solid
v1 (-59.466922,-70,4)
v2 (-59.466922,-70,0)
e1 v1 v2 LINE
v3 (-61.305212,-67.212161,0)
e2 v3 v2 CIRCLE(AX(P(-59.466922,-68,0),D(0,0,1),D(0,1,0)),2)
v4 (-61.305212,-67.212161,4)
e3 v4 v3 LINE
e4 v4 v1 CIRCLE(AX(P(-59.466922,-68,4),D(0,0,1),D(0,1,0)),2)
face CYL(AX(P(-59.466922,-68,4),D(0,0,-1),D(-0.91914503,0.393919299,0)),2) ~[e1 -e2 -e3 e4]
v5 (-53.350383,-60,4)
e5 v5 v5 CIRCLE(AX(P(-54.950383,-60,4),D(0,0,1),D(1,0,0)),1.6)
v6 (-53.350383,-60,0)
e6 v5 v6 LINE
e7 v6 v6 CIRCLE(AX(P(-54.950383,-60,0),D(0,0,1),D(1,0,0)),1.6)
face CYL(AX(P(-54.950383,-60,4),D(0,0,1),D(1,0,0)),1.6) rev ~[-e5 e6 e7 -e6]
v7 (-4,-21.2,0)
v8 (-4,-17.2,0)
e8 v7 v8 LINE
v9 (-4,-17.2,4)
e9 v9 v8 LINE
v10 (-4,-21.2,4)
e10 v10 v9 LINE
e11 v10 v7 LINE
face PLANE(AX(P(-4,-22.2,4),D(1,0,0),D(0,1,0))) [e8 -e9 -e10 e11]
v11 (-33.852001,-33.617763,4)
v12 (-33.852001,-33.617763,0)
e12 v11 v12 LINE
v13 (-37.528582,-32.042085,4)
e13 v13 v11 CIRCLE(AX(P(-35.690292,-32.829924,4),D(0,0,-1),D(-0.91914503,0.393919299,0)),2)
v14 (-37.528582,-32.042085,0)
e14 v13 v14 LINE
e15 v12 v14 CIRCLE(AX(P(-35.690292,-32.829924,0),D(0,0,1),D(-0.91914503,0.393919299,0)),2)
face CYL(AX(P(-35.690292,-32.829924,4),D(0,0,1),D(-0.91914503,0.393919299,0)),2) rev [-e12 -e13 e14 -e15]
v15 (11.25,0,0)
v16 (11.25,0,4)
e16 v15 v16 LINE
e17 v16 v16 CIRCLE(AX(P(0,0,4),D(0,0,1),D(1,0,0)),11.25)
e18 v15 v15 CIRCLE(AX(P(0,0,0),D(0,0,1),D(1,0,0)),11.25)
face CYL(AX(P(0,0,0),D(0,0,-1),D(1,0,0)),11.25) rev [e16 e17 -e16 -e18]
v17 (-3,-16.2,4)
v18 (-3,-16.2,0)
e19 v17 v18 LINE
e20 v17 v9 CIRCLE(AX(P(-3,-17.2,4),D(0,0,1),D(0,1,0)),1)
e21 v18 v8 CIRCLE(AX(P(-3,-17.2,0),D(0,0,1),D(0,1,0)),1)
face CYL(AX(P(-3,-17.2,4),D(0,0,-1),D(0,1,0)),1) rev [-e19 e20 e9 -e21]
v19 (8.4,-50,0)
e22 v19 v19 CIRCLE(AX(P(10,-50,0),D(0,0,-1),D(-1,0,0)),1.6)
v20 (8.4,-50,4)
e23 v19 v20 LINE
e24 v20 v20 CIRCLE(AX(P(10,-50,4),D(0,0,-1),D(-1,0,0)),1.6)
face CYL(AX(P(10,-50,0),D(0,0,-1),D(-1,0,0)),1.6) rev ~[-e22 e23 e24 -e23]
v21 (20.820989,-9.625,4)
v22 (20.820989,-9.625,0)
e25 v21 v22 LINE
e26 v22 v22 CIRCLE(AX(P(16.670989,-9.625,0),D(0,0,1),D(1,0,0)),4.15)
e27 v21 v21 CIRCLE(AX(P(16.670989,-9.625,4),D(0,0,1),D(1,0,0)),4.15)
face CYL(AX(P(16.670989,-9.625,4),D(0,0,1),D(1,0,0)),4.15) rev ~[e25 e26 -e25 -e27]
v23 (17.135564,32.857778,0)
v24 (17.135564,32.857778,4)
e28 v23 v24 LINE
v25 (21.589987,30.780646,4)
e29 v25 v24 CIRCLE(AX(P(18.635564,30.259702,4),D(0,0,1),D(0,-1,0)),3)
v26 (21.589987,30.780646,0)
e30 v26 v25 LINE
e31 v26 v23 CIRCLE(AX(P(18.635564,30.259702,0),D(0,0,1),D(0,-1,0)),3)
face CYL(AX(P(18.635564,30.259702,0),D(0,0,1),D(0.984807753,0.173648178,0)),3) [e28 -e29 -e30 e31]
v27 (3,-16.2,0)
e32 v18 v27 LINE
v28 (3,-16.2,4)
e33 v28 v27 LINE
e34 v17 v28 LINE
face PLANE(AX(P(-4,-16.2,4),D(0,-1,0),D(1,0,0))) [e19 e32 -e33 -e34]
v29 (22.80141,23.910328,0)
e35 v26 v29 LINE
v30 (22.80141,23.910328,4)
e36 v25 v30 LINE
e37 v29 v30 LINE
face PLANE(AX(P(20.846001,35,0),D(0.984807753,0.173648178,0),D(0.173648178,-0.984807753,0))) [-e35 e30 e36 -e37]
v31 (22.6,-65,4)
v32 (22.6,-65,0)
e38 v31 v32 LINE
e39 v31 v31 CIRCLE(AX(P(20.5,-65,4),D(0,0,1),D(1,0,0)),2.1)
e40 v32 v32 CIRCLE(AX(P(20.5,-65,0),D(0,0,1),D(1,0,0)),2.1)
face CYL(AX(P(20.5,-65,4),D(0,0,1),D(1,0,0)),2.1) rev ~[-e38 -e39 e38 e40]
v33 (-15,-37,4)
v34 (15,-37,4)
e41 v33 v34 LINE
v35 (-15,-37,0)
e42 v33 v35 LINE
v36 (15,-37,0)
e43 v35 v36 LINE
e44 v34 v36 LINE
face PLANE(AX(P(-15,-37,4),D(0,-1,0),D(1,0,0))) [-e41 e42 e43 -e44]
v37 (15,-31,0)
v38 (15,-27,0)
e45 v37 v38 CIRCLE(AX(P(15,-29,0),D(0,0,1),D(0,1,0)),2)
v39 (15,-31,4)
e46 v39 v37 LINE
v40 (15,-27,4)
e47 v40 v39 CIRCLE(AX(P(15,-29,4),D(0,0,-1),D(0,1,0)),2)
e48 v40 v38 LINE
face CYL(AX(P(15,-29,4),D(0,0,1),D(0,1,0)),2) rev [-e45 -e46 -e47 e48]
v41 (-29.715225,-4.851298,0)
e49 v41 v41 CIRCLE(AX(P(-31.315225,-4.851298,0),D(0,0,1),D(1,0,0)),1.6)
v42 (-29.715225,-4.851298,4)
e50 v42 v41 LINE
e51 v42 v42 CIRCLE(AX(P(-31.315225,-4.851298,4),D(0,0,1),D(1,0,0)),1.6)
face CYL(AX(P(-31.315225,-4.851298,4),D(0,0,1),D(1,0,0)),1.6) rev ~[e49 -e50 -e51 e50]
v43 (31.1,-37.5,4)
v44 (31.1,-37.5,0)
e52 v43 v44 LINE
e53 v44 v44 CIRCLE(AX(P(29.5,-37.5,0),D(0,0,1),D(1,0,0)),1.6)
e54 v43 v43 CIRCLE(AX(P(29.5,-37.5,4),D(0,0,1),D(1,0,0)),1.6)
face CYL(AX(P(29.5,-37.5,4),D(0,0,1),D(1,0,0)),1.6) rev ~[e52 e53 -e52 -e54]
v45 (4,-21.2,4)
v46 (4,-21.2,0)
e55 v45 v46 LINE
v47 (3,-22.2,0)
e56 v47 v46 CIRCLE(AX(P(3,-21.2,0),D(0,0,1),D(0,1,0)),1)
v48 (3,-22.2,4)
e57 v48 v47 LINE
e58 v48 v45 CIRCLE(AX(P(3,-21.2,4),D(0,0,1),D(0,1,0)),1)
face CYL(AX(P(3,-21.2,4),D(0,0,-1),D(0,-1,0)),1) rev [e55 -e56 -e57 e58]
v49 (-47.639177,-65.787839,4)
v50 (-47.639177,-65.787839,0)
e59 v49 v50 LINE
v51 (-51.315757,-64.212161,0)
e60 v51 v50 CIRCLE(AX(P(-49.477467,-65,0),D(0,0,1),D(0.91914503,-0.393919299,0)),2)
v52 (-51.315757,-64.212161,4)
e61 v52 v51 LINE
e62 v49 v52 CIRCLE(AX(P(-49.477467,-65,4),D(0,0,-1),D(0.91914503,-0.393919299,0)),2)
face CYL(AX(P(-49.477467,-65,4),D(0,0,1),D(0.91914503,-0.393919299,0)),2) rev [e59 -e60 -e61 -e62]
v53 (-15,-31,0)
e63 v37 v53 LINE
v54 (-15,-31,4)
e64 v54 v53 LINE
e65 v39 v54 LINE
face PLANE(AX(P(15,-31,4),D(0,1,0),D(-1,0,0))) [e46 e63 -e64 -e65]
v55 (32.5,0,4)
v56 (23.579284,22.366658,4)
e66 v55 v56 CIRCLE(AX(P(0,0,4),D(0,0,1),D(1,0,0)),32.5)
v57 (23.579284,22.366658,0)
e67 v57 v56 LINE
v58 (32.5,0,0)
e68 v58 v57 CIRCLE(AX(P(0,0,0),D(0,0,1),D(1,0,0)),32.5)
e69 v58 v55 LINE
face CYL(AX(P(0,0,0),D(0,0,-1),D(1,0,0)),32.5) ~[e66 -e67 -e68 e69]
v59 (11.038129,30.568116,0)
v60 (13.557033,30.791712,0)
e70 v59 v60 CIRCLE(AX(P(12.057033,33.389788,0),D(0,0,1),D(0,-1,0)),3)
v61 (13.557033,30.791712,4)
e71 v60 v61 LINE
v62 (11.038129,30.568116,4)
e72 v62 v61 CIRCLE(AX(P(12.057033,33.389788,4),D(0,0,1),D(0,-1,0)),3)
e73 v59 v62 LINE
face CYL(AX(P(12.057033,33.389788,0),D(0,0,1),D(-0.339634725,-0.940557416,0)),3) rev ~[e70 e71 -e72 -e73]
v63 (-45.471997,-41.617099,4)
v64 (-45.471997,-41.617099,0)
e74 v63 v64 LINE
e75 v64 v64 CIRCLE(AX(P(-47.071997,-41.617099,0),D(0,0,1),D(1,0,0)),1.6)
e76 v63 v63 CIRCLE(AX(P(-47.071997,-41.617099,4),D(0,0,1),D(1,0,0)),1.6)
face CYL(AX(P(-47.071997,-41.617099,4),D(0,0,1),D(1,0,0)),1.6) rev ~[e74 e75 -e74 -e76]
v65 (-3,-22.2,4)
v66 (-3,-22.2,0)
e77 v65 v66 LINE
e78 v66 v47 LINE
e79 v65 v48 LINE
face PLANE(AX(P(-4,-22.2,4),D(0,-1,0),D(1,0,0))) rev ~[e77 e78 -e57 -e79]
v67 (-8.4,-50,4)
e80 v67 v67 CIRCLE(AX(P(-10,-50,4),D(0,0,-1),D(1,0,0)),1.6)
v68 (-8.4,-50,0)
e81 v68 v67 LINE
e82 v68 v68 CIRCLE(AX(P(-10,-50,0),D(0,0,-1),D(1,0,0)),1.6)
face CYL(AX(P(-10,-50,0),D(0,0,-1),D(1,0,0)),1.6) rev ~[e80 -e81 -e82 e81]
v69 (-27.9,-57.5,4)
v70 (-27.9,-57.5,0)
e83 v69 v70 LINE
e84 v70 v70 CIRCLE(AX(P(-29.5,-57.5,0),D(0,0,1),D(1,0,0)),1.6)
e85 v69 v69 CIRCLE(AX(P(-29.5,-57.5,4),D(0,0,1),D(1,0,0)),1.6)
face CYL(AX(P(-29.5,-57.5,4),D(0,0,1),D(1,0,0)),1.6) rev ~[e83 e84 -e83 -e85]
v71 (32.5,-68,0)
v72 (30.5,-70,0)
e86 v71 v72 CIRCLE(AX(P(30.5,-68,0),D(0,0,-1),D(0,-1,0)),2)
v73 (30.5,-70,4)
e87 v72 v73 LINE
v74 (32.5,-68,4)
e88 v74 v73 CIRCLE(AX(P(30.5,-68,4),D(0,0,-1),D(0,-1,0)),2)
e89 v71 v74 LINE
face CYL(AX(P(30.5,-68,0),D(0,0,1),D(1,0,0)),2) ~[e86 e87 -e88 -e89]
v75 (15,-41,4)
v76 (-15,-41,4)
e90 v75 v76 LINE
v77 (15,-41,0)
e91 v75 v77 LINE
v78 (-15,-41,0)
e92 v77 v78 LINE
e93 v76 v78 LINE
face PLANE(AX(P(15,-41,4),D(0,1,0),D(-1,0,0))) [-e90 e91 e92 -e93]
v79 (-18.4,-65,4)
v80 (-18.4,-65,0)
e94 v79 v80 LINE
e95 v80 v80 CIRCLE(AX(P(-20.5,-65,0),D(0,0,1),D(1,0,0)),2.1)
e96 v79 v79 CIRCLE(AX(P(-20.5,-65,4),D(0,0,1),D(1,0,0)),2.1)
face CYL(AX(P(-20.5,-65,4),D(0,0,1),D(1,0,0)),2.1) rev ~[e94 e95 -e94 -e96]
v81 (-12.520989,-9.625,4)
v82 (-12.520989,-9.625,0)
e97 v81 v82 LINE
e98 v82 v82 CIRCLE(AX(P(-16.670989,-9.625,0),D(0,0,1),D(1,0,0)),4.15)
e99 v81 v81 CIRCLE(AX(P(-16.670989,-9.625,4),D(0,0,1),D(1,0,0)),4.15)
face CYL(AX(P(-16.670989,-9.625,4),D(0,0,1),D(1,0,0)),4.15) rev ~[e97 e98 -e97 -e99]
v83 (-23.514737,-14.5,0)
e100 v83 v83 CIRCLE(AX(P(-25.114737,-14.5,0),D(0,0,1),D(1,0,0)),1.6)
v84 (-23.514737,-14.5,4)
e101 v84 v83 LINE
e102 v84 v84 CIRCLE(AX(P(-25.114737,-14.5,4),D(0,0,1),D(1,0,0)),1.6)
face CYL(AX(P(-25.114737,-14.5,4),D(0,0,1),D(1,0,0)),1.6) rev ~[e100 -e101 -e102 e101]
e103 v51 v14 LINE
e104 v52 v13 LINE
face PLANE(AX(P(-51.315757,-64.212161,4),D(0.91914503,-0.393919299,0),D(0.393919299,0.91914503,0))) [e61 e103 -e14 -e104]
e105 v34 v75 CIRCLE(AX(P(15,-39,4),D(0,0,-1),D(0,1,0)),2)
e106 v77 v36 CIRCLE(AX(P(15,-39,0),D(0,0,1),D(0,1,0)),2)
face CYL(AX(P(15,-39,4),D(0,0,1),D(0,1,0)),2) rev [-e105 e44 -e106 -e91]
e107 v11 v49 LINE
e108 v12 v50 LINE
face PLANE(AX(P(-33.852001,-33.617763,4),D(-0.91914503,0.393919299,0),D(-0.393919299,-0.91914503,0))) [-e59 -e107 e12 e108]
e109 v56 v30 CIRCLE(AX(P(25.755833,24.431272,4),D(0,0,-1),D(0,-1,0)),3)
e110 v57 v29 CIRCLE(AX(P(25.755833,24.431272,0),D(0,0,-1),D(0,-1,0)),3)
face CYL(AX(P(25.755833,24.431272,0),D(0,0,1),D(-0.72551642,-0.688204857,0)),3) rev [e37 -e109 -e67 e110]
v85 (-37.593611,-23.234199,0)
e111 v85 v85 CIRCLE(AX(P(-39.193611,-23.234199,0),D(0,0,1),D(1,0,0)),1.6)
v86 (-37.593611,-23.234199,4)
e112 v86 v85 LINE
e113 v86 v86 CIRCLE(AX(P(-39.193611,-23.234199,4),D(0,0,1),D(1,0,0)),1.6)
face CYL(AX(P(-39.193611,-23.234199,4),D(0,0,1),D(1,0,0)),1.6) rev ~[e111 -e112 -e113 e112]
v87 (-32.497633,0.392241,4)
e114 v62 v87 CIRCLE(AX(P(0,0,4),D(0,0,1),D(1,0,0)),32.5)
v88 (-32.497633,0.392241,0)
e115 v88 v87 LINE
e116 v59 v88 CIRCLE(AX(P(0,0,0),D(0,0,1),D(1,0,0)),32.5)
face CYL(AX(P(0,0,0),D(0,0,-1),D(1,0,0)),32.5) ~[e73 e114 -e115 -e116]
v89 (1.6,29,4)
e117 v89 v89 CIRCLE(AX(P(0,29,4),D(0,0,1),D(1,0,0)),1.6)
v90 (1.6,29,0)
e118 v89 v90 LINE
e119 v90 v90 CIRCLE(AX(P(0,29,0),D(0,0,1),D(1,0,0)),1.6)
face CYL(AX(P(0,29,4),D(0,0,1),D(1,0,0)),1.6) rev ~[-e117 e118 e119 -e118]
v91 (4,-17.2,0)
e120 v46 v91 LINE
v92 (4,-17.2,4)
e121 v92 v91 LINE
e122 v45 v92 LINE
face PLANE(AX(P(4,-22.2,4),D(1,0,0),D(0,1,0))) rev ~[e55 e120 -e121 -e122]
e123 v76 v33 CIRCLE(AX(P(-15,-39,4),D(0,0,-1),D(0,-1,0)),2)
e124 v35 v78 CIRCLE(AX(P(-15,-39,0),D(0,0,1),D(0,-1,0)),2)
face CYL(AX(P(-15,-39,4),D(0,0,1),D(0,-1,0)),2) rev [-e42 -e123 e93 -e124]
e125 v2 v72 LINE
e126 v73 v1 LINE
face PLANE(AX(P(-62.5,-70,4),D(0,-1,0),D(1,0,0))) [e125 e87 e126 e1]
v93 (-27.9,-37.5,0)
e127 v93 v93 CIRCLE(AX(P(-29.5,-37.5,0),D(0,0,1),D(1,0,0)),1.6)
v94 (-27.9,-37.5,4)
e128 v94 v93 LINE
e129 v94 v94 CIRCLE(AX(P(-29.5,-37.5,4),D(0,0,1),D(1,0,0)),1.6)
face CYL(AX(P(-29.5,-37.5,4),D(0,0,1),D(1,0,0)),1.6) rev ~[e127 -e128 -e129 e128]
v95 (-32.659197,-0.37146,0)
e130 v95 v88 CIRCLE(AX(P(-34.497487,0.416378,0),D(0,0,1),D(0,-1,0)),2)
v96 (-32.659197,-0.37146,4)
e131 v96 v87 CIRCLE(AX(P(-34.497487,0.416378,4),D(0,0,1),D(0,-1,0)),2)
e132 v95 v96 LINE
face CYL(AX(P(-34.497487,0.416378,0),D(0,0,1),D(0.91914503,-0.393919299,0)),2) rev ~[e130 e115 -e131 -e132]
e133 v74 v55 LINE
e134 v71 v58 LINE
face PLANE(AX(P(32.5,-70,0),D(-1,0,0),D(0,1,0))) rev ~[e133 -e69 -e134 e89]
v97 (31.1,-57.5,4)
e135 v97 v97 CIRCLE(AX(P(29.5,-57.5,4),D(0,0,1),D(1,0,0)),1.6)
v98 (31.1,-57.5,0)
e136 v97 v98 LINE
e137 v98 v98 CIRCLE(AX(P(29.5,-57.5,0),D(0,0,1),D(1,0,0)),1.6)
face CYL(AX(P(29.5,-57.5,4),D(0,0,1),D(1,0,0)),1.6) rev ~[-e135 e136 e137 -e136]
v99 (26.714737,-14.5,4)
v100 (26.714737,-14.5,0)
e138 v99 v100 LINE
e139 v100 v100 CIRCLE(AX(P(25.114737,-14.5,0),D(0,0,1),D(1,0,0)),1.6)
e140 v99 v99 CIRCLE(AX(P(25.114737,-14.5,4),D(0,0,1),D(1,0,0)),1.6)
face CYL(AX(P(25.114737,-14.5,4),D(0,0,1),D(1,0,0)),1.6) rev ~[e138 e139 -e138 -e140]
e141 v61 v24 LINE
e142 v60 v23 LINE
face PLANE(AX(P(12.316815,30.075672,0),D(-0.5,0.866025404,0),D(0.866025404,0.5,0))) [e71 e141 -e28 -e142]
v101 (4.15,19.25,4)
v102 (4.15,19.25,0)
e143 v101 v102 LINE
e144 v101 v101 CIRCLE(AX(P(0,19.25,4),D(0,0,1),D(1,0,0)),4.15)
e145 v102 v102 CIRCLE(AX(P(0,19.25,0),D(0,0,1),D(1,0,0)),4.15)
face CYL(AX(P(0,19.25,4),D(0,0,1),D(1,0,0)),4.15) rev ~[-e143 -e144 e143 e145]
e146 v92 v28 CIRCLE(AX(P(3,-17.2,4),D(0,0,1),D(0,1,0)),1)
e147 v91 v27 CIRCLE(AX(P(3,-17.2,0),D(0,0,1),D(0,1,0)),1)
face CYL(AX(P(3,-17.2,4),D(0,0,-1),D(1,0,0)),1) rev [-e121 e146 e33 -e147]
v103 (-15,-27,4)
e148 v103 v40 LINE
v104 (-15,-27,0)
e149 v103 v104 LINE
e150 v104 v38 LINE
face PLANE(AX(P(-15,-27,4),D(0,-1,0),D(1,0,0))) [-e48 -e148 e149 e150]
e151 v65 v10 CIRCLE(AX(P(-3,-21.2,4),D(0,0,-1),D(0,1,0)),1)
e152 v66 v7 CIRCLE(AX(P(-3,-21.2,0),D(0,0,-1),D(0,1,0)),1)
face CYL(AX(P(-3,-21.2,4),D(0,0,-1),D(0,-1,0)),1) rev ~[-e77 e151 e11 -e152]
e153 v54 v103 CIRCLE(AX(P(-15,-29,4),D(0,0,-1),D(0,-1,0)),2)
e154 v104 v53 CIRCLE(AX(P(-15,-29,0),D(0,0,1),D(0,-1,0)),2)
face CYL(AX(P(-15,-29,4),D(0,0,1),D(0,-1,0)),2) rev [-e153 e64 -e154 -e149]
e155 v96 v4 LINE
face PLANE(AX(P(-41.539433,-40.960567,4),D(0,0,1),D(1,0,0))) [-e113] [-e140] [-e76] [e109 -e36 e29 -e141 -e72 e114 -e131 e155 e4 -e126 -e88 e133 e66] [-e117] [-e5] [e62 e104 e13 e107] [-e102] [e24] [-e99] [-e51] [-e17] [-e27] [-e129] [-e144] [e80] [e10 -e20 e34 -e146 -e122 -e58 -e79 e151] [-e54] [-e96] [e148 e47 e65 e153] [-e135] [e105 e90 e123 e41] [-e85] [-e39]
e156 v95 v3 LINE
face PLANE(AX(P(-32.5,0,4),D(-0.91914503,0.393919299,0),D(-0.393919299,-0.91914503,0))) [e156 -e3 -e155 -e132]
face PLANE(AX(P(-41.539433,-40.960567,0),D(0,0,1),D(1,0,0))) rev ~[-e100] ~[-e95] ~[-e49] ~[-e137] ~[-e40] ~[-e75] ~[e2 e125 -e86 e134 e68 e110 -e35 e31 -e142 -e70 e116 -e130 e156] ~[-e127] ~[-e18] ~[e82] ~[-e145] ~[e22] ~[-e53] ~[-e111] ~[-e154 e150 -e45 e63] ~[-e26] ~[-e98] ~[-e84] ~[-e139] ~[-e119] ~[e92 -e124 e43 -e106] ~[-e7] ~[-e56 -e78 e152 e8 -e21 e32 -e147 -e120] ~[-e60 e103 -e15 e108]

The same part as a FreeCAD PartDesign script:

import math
import FreeCAD as App
import Part
import Sketcher
from FreeCAD import Vector
Q = App.Units.Quantity


def edges_at(feature, points):
    """Names of the edges that pass closest to the given points."""
    edges = feature.Shape.Edges
    near = lambda p: min(range(len(edges)), key=lambda i: edges[i].distToShape(Part.Vertex(*p))[0])
    return sorted({f"Edge{near(p) + 1}" for p in points})

doc = App.newDocument("Part")
params = doc.addObject("Spreadsheet::Sheet", "Params")
for row, (alias, value) in enumerate([
    ("sketch1_diameter", "65 mm"),
    ("sketch1_diameter2", "22.5 mm"),
    ("pad1_length", "4 mm"),
    ("sketch2_radius", "32.5 mm"),
    ("sketch2_height", "70 mm"),
    ("pad2_length", "4 mm"),
    ("sketch3_diameter", "8.3 mm"),
    ("pocket1_length", "4 mm"),
    ("sketch4_diameter", "3.2 mm"),
    ("pocket2_length", "4 mm"),
    ("sketch5_height", "4 mm"),
    ("sketch5_width", "35.2 mm"),
    ("pad3_length", "4 mm"),
    ("sketch6_diameter", "4.2 mm"),
    ("pocket3_length", "4 mm"),
    ("sketch7_width", "8 mm"),
    ("sketch7_height", "6 mm"),
    ("pocket4_length", "4 mm"),
    ("fillet_radius", "1 mm"),
    ("sketch8_diameter", "3.2 mm"),
    ("pocket5_length", "10 mm"),
    ("sketch9_height", "4 mm"),
    ("sketch9_width", "35.2 mm"),
    ("pocket6_length", "10 mm"),
    ("sketch10_diameter", "3.2 mm"),
    ("pocket7_length", "10 mm"),
    ("sketch11_radius", "32.5 mm"),
    ("pad4_length", "4 mm"),
    ("fillet2_radius", "3 mm"),
    ("sketch12_radius", "2 mm"),
    ("sketch12_width", "30 mm"),
    ("pocket8_length", "10 mm"),
    ("sketch13_width", "30 mm"),
    ("sketch13_height", "70 mm"),
    ("pad5_length", "4 mm"),
    ("fillet3_radius", "2 mm"),
    ("sketch14_radius", "2 mm"),
    ("sketch14_radius2", "2 mm"),
    ("sketch14_diameter", "3.2 mm"),
    ("sketch14_diameter2", "3.2 mm"),
    ("sketch14_diameter3", "3.2 mm"),
    ("pocket9_length", "10 mm"),
], start=1):
    params.set(f"A{row}", alias)
    params.set(f"B{row}", "=" + value)
    params.setAlias(f"B{row}", alias)

body = doc.addObject("PartDesign::Body", "Body")

sketch1 = body.newObject("Sketcher::SketchObject", "Sketch")
sketch1.AttachmentSupport = (doc.getObject("XY_Plane"), [""])
sketch1.MapMode = "FlatFace"
sketch1.addGeometry(Part.Circle(Vector(0, 0, 0), Vector(0, 0, 1), 32), False)
sketch1.addGeometry(Part.Circle(Vector(0, 0, 0), Vector(0, 0, 1), 11), False)
sketch1.addConstraint(Sketcher.Constraint("Coincident", 0, 3, -1, 1))
sketch1.addConstraint(Sketcher.Constraint("Coincident", 1, 3, -1, 1))
sketch1.addConstraint(Sketcher.Constraint("Diameter", 0, Q("65 mm")))
sketch1.addConstraint(Sketcher.Constraint("Diameter", 1, Q("22.5 mm")))
sketch1.setExpression("Constraints[2]", "Params.sketch1_diameter")
sketch1.setExpression("Constraints[3]", "Params.sketch1_diameter2")
pad1 = body.newObject("PartDesign::Pad", "Pad")
pad1.Profile = sketch1
pad1.setExpression("Length", "Params.pad1_length")

sketch2 = body.newObject("Sketcher::SketchObject", "Sketch001")
sketch2.AttachmentSupport = (doc.getObject("XY_Plane"), [""])
sketch2.MapMode = "FlatFace"
sketch2.addGeometry(Part.LineSegment(Vector(-32, 0, 0), Vector(-32, -70, 0)), False)
sketch2.addGeometry(Part.LineSegment(Vector(-32, -70, 0), Vector(32, -70, 0)), False)
sketch2.addGeometry(Part.LineSegment(Vector(32, -70, 0), Vector(32, 0, 0)), False)
sketch2.addGeometry(Part.ArcOfCircle(Part.Circle(Vector(0, 0, 0), Vector(0, 0, 1), 32), math.radians(180), math.radians(360)), False)
sketch2.addConstraint(Sketcher.Constraint("Coincident", 0, 2, 1, 1))
sketch2.addConstraint(Sketcher.Constraint("Coincident", 1, 2, 2, 1))
sketch2.addConstraint(Sketcher.Constraint("Tangent", 2, 2, 3, 2))
sketch2.addConstraint(Sketcher.Constraint("Tangent", 3, 1, 0, 1))
sketch2.addConstraint(Sketcher.Constraint("Vertical", 0))
sketch2.addConstraint(Sketcher.Constraint("Horizontal", 1))
sketch2.addConstraint(Sketcher.Constraint("Vertical", 2))
sketch2.addConstraint(Sketcher.Constraint("Coincident", 3, 3, -1, 1))
sketch2.addConstraint(Sketcher.Constraint("Radius", 3, Q("32.5 mm")))
sketch2.addConstraint(Sketcher.Constraint("DistanceY", 0, 2, 0, 1, Q("70 mm")))
sketch2.setExpression("Constraints[8]", "Params.sketch2_radius")
sketch2.setExpression("Constraints[9]", "Params.sketch2_height")
pad2 = body.newObject("PartDesign::Pad", "Pad001")
pad2.Profile = sketch2
pad2.setExpression("Length", "Params.pad2_length")

sketch3 = body.newObject("Sketcher::SketchObject", "Sketch002")
sketch3.AttachmentSupport = (doc.getObject("XY_Plane"), [""])
sketch3.MapMode = "FlatFace"
sketch3.AttachmentOffset = App.Placement(Vector(0, 0, 4), App.Rotation())
sketch3.addGeometry(Part.Circle(Vector(0, 19.2, 0), Vector(0, 0, 1), 4.2), False)
sketch3.addGeometry(Part.Circle(Vector(16.7, -9.6, 0), Vector(0, 0, 1), 4.2), False)
sketch3.addGeometry(Part.Circle(Vector(-16.7, -9.6, 0), Vector(0, 0, 1), 4.2), False)
sketch3.addConstraint(Sketcher.Constraint("Equal", 0, 1))
sketch3.addConstraint(Sketcher.Constraint("Equal", 1, 2))
sketch3.addConstraint(Sketcher.Constraint("Symmetric", 1, 3, 2, 3, -2))
sketch3.addConstraint(Sketcher.Constraint("PointOnObject", 0, 3, -2))
sketch3.addConstraint(Sketcher.Constraint("Diameter", 0, Q("8.3 mm")))
sketch3.addConstraint(Sketcher.Constraint("DistanceY", -1, 1, 0, 3, Q("19.25 mm")))
sketch3.addConstraint(Sketcher.Constraint("DistanceY", 1, 3, -1, 1, Q("9.625 mm")))
sketch3.addConstraint(Sketcher.Constraint("DistanceX", -1, 1, 1, 3, Q("16.670989 mm")))
sketch3.setExpression("Constraints[4]", "Params.sketch3_diameter")
pocket1 = body.newObject("PartDesign::Pocket", "Pocket")
pocket1.Profile = sketch3
pocket1.setExpression("Length", "Params.pocket1_length")

sketch4 = body.newObject("Sketcher::SketchObject", "Sketch003")
sketch4.AttachmentSupport = (doc.getObject("XY_Plane"), [""])
sketch4.MapMode = "FlatFace"
sketch4.AttachmentOffset = App.Placement(Vector(0, 0, 4), App.Rotation())
sketch4.addGeometry(Part.Circle(Vector(0, 29, 0), Vector(0, 0, 1), 1.6), False)
sketch4.addGeometry(Part.Circle(Vector(25.1, -14.5, 0), Vector(0, 0, 1), 1.6), False)
sketch4.addGeometry(Part.Circle(Vector(-25.1, -14.5, 0), Vector(0, 0, 1), 1.6), False)
sketch4.addConstraint(Sketcher.Constraint("Equal", 0, 1))
sketch4.addConstraint(Sketcher.Constraint("Equal", 1, 2))
sketch4.addConstraint(Sketcher.Constraint("Symmetric", 1, 3, 2, 3, -2))
sketch4.addConstraint(Sketcher.Constraint("PointOnObject", 0, 3, -2))
sketch4.addConstraint(Sketcher.Constraint("Diameter", 0, Q("3.2 mm")))
sketch4.addConstraint(Sketcher.Constraint("DistanceY", -1, 1, 0, 3, Q("29 mm")))
sketch4.addConstraint(Sketcher.Constraint("DistanceY", 1, 3, -1, 1, Q("14.5 mm")))
sketch4.addConstraint(Sketcher.Constraint("DistanceX", -1, 1, 1, 3, Q("25.114737 mm")))
sketch4.setExpression("Constraints[4]", "Params.sketch4_diameter")
pocket2 = body.newObject("PartDesign::Pocket", "Pocket001")
pocket2.Profile = sketch4
pocket2.setExpression("Length", "Params.pocket2_length")

sketch5 = body.newObject("Sketcher::SketchObject", "Sketch004")
sketch5.AttachmentSupport = (doc.getObject("XY_Plane"), [""])
sketch5.MapMode = "FlatFace"
sketch5.AttachmentOffset = App.Placement(Vector(0, 0, 4), App.Rotation())
sketch5.addGeometry(Part.LineSegment(Vector(-17.6, -70, 0), Vector(-17.6, -74, 0)), False)
sketch5.addGeometry(Part.LineSegment(Vector(-17.6, -74, 0), Vector(17.6, -74, 0)), False)
sketch5.addGeometry(Part.LineSegment(Vector(17.6, -74, 0), Vector(17.6, -70, 0)), False)
sketch5.addGeometry(Part.LineSegment(Vector(17.6, -70, 0), Vector(-17.6, -70, 0)), False)
sketch5.addConstraint(Sketcher.Constraint("Coincident", 0, 2, 1, 1))
sketch5.addConstraint(Sketcher.Constraint("Coincident", 1, 2, 2, 1))
sketch5.addConstraint(Sketcher.Constraint("Coincident", 2, 2, 3, 1))
sketch5.addConstraint(Sketcher.Constraint("Coincident", 3, 2, 0, 1))
sketch5.addConstraint(Sketcher.Constraint("Vertical", 0))
sketch5.addConstraint(Sketcher.Constraint("Horizontal", 1))
sketch5.addConstraint(Sketcher.Constraint("Vertical", 2))
sketch5.addConstraint(Sketcher.Constraint("Horizontal", 3))
sketch5.addConstraint(Sketcher.Constraint("DistanceY", 0, 2, 0, 1, Q("4 mm")))
sketch5.addConstraint(Sketcher.Constraint("DistanceX", 1, 1, 1, 2, Q("35.2 mm")))
sketch5.addConstraint(Sketcher.Constraint("DistanceY", 0, 2, -1, 1, Q("74 mm")))
sketch5.addConstraint(Sketcher.Constraint("DistanceX", 0, 2, -1, 1, Q("17.6 mm")))
sketch5.setExpression("Constraints[8]", "Params.sketch5_height")
sketch5.setExpression("Constraints[9]", "Params.sketch5_width")
pad3 = body.newObject("PartDesign::Pad", "Pad002")
pad3.Profile = sketch5
pad3.setExpression("Length", "Params.pad3_length")
pad3.Reversed = True

sketch6 = body.newObject("Sketcher::SketchObject", "Sketch005")
sketch6.AttachmentSupport = (doc.getObject("XY_Plane"), [""])
sketch6.MapMode = "FlatFace"
sketch6.AttachmentOffset = App.Placement(Vector(0, 0, 4), App.Rotation())
sketch6.addGeometry(Part.Circle(Vector(-20.5, -65, 0), Vector(0, 0, 1), 2.1), False)
sketch6.addGeometry(Part.Circle(Vector(20.5, -65, 0), Vector(0, 0, 1), 2.1), False)
sketch6.addConstraint(Sketcher.Constraint("Equal", 0, 1))
sketch6.addConstraint(Sketcher.Constraint("Symmetric", 0, 3, 1, 3, -2))
sketch6.addConstraint(Sketcher.Constraint("Diameter", 0, Q("4.2 mm")))
sketch6.addConstraint(Sketcher.Constraint("DistanceY", 0, 3, -1, 1, Q("65 mm")))
sketch6.addConstraint(Sketcher.Constraint("DistanceX", 0, 3, 1, 3, Q("41 mm")))
sketch6.setExpression("Constraints[2]", "Params.sketch6_diameter")
pocket3 = body.newObject("PartDesign::Pocket", "Pocket002")
pocket3.Profile = sketch6
pocket3.setExpression("Length", "Params.pocket3_length")

sketch7 = body.newObject("Sketcher::SketchObject", "Sketch006")
sketch7.AttachmentSupport = (doc.getObject("XY_Plane"), [""])
sketch7.MapMode = "FlatFace"
sketch7.AttachmentOffset = App.Placement(Vector(0, 0, 4), App.Rotation())
sketch7.addGeometry(Part.LineSegment(Vector(-4, -16, 0), Vector(-4, -22, 0)), False)
sketch7.addGeometry(Part.LineSegment(Vector(-4, -22, 0), Vector(4, -22, 0)), False)
sketch7.addGeometry(Part.LineSegment(Vector(4, -22, 0), Vector(4, -16, 0)), False)
sketch7.addGeometry(Part.LineSegment(Vector(4, -16, 0), Vector(-4, -16, 0)), False)
sketch7.addConstraint(Sketcher.Constraint("Coincident", 0, 2, 1, 1))
sketch7.addConstraint(Sketcher.Constraint("Coincident", 1, 2, 2, 1))
sketch7.addConstraint(Sketcher.Constraint("Coincident", 2, 2, 3, 1))
sketch7.addConstraint(Sketcher.Constraint("Coincident", 3, 2, 0, 1))
sketch7.addConstraint(Sketcher.Constraint("Vertical", 0))
sketch7.addConstraint(Sketcher.Constraint("Horizontal", 1))
sketch7.addConstraint(Sketcher.Constraint("Vertical", 2))
sketch7.addConstraint(Sketcher.Constraint("Horizontal", 3))
sketch7.addConstraint(Sketcher.Constraint("DistanceX", 1, 1, 1, 2, Q("8 mm")))
sketch7.addConstraint(Sketcher.Constraint("DistanceY", 0, 2, 0, 1, Q("6 mm")))
sketch7.addConstraint(Sketcher.Constraint("DistanceX", 0, 2, -1, 1, Q("4 mm")))
sketch7.addConstraint(Sketcher.Constraint("DistanceY", 0, 2, -1, 1, Q("22.2 mm")))
sketch7.setExpression("Constraints[8]", "Params.sketch7_width")
sketch7.setExpression("Constraints[9]", "Params.sketch7_height")
pocket4 = body.newObject("PartDesign::Pocket", "Pocket003")
pocket4.Profile = sketch7
pocket4.setExpression("Length", "Params.pocket4_length")
doc.recompute()

fillet = body.newObject("PartDesign::Fillet", "Fillet")
fillet.Base = (pocket4, edges_at(pocket4, [
    (4, -16.2, 2),
    (4, -22.2, 2),
    (-4, -22.2, 2),
    (-4, -16.2, 2),
]))
fillet.setExpression("Radius", "Params.fillet_radius")

sketch8 = body.newObject("Sketcher::SketchObject", "Sketch007")
sketch8.AttachmentSupport = (doc.getObject("XY_Plane"), [""])
sketch8.MapMode = "FlatFace"
sketch8.addGeometry(Part.Circle(Vector(10, -50, 0), Vector(0, 0, 1), 1.6), False)
sketch8.addGeometry(Part.Circle(Vector(-10, -50, 0), Vector(0, 0, 1), 1.6), False)
sketch8.addConstraint(Sketcher.Constraint("Equal", 0, 1))
sketch8.addConstraint(Sketcher.Constraint("Symmetric", 0, 3, 1, 3, -2))
sketch8.addConstraint(Sketcher.Constraint("Diameter", 0, Q("3.2 mm")))
sketch8.addConstraint(Sketcher.Constraint("DistanceX", -1, 1, 0, 3, Q("10 mm")))
sketch8.addConstraint(Sketcher.Constraint("DistanceY", 0, 3, -1, 1, Q("50 mm")))
sketch8.setExpression("Constraints[2]", "Params.sketch8_diameter")
pocket5 = body.newObject("PartDesign::Pocket", "Pocket004")
pocket5.Profile = sketch8
pocket5.setExpression("Length", "Params.pocket5_length")
pocket5.Reversed = True

sketch9 = body.newObject("Sketcher::SketchObject", "Sketch008")
sketch9.AttachmentSupport = (doc.getObject("XY_Plane"), [""])
sketch9.MapMode = "FlatFace"
sketch9.AttachmentOffset = App.Placement(Vector(0, 0, 4), App.Rotation())
sketch9.addGeometry(Part.LineSegment(Vector(-17.6, -70, 0), Vector(-17.6, -74, 0)), False)
sketch9.addGeometry(Part.LineSegment(Vector(-17.6, -74, 0), Vector(17.6, -74, 0)), False)
sketch9.addGeometry(Part.LineSegment(Vector(17.6, -74, 0), Vector(17.6, -70, 0)), False)
sketch9.addGeometry(Part.LineSegment(Vector(17.6, -70, 0), Vector(-17.6, -70, 0)), False)
sketch9.addConstraint(Sketcher.Constraint("Coincident", 0, 2, 1, 1))
sketch9.addConstraint(Sketcher.Constraint("Coincident", 1, 2, 2, 1))
sketch9.addConstraint(Sketcher.Constraint("Coincident", 2, 2, 3, 1))
sketch9.addConstraint(Sketcher.Constraint("Coincident", 3, 2, 0, 1))
sketch9.addConstraint(Sketcher.Constraint("Vertical", 0))
sketch9.addConstraint(Sketcher.Constraint("Horizontal", 1))
sketch9.addConstraint(Sketcher.Constraint("Vertical", 2))
sketch9.addConstraint(Sketcher.Constraint("Horizontal", 3))
sketch9.addConstraint(Sketcher.Constraint("DistanceY", 0, 2, 0, 1, Q("4 mm")))
sketch9.addConstraint(Sketcher.Constraint("DistanceX", 1, 1, 1, 2, Q("35.2 mm")))
sketch9.addConstraint(Sketcher.Constraint("DistanceY", 0, 2, -1, 1, Q("74 mm")))
sketch9.addConstraint(Sketcher.Constraint("DistanceX", 0, 2, -1, 1, Q("17.6 mm")))
sketch9.setExpression("Constraints[8]", "Params.sketch9_height")
sketch9.setExpression("Constraints[9]", "Params.sketch9_width")
pocket6 = body.newObject("PartDesign::Pocket", "Pocket005")
pocket6.Profile = sketch9
pocket6.setExpression("Length", "Params.pocket6_length")

sketch10 = body.newObject("Sketcher::SketchObject", "Sketch009")
sketch10.AttachmentSupport = (doc.getObject("XY_Plane"), [""])
sketch10.MapMode = "FlatFace"
sketch10.AttachmentOffset = App.Placement(Vector(0, 0, 4), App.Rotation())
sketch10.addGeometry(Part.Circle(Vector(-29.5, -57.5, 0), Vector(0, 0, 1), 1.6), False)
sketch10.addGeometry(Part.Circle(Vector(-29.5, -37.5, 0), Vector(0, 0, 1), 1.6), False)
sketch10.addGeometry(Part.Circle(Vector(29.5, -37.5, 0), Vector(0, 0, 1), 1.6), False)
sketch10.addGeometry(Part.Circle(Vector(29.5, -57.5, 0), Vector(0, 0, 1), 1.6), False)
sketch10.addConstraint(Sketcher.Constraint("Equal", 0, 1))
sketch10.addConstraint(Sketcher.Constraint("Equal", 1, 2))
sketch10.addConstraint(Sketcher.Constraint("Equal", 2, 3))
sketch10.addConstraint(Sketcher.Constraint("Symmetric", 1, 3, 2, 3, -2))
sketch10.addConstraint(Sketcher.Constraint("Symmetric", 0, 3, 3, 3, -2))
sketch10.addConstraint(Sketcher.Constraint("Vertical", 0, 3, 1, 3))
sketch10.addConstraint(Sketcher.Constraint("Diameter", 0, Q("3.2 mm")))
sketch10.addConstraint(Sketcher.Constraint("DistanceY", 0, 3, 1, 3, Q("20 mm")))
sketch10.addConstraint(Sketcher.Constraint("DistanceX", 1, 3, 2, 3, Q("59 mm")))
sketch10.addConstraint(Sketcher.Constraint("DistanceY", 0, 3, -1, 1, Q("57.5 mm")))
sketch10.setExpression("Constraints[6]", "Params.sketch10_diameter")
pocket7 = body.newObject("PartDesign::Pocket", "Pocket006")
pocket7.Profile = sketch10
pocket7.setExpression("Length", "Params.pocket7_length")

sketch11 = body.newObject("Sketcher::SketchObject", "Sketch010")
sketch11.AttachmentSupport = (doc.getObject("XY_Plane"), [""])
sketch11.MapMode = "FlatFace"
sketch11.addGeometry(Part.LineSegment(Vector(21, 35, 0), Vector(12, 30, 0)), False)
sketch11.addGeometry(Part.ArcOfCircle(Part.Circle(Vector(0, 0, 0), Vector(0, 0, 1), 32), math.radians(45), math.radians(68)), False)
sketch11.addGeometry(Part.LineSegment(Vector(23, 23, 0), Vector(21, 35, 0)), False)
sketch11.addConstraint(Sketcher.Constraint("Coincident", 0, 2, 1, 2))
sketch11.addConstraint(Sketcher.Constraint("Coincident", 1, 1, 2, 1))
sketch11.addConstraint(Sketcher.Constraint("Coincident", 2, 2, 0, 1))
sketch11.addConstraint(Sketcher.Constraint("Coincident", 1, 3, -1, 1))
sketch11.addConstraint(Sketcher.Constraint("Radius", 1, Q("32.5 mm")))
sketch11.addConstraint(Sketcher.Constraint("Angle", 0, Q("-150 deg")))
sketch11.addConstraint(Sketcher.Constraint("Angle", 2, Q("100 deg")))
sketch11.addConstraint(Sketcher.Constraint("DistanceY", -1, 1, 1, 1, Q("23 mm")))
sketch11.addConstraint(Sketcher.Constraint("DistanceY", -1, 1, 2, 2, Q("35 mm")))
sketch11.setExpression("Constraints[4]", "Params.sketch11_radius")
pad4 = body.newObject("PartDesign::Pad", "Pad003")
pad4.Profile = sketch11
pad4.setExpression("Length", "Params.pad4_length")
doc.recompute()

fillet2 = body.newObject("PartDesign::Fillet", "Fillet001")
fillet2.Base = (pad4, edges_at(pad4, [(22.962, 23, 2), (12.317, 30.076, 2), (20.846, 35, 2)]))
fillet2.setExpression("Radius", "Params.fillet2_radius")

sketch12 = body.newObject("Sketcher::SketchObject", "Sketch011")
sketch12.AttachmentSupport = (doc.getObject("XY_Plane"), [""])
sketch12.MapMode = "FlatFace"
sketch12.AttachmentOffset = App.Placement(Vector(0, 0, 4), App.Rotation())
sketch12.addGeometry(Part.LineSegment(Vector(15, -27, 0), Vector(-15, -27, 0)), False)
sketch12.addGeometry(Part.ArcOfCircle(Part.Circle(Vector(-15, -29, 0), Vector(0, 0, 1), 2), math.radians(90), math.radians(270)), False)
sketch12.addGeometry(Part.LineSegment(Vector(-15, -31, 0), Vector(15, -31, 0)), False)
sketch12.addGeometry(Part.ArcOfCircle(Part.Circle(Vector(15, -29, 0), Vector(0, 0, 1), 2), math.radians(-90), math.radians(90)), False)
sketch12.addGeometry(Part.LineSegment(Vector(15, -37, 0), Vector(-15, -37, 0)), False)
sketch12.addGeometry(Part.ArcOfCircle(Part.Circle(Vector(-15, -39, 0), Vector(0, 0, 1), 2), math.radians(90), math.radians(270)), False)
sketch12.addGeometry(Part.LineSegment(Vector(-15, -41, 0), Vector(15, -41, 0)), False)
sketch12.addGeometry(Part.ArcOfCircle(Part.Circle(Vector(15, -39, 0), Vector(0, 0, 1), 2), math.radians(-90), math.radians(90)), False)
sketch12.addConstraint(Sketcher.Constraint("Tangent", 0, 2, 1, 1))
sketch12.addConstraint(Sketcher.Constraint("Tangent", 1, 2, 2, 1))
sketch12.addConstraint(Sketcher.Constraint("Tangent", 2, 2, 3, 1))
sketch12.addConstraint(Sketcher.Constraint("Tangent", 3, 2, 0, 1))
sketch12.addConstraint(Sketcher.Constraint("Tangent", 4, 2, 5, 1))
sketch12.addConstraint(Sketcher.Constraint("Tangent", 5, 2, 6, 1))
sketch12.addConstraint(Sketcher.Constraint("Tangent", 6, 2, 7, 1))
sketch12.addConstraint(Sketcher.Constraint("Tangent", 7, 2, 4, 1))
sketch12.addConstraint(Sketcher.Constraint("Horizontal", 0))
sketch12.addConstraint(Sketcher.Constraint("Horizontal", 2))
sketch12.addConstraint(Sketcher.Constraint("Horizontal", 4))
sketch12.addConstraint(Sketcher.Constraint("Horizontal", 6))
sketch12.addConstraint(Sketcher.Constraint("Equal", 3, 5))
sketch12.addConstraint(Sketcher.Constraint("Vertical", 1, 3, 5, 3))
sketch12.addConstraint(Sketcher.Constraint("Vertical", 3, 3, 7, 3))
sketch12.addConstraint(Sketcher.Constraint("Radius", 1, Q("2 mm")))
sketch12.addConstraint(Sketcher.Constraint("DistanceX", 0, 2, 0, 1, Q("30 mm")))
sketch12.addConstraint(Sketcher.Constraint("DistanceX", 1, 3, -1, 1, Q("15 mm")))
sketch12.addConstraint(Sketcher.Constraint("DistanceY", 1, 3, -1, 1, Q("29 mm")))
sketch12.addConstraint(Sketcher.Constraint("DistanceY", 5, 3, -1, 1, Q("39 mm")))
sketch12.setExpression("Constraints[15]", "Params.sketch12_radius")
sketch12.setExpression("Constraints[16]", "Params.sketch12_width")
pocket8 = body.newObject("PartDesign::Pocket", "Pocket007")
pocket8.Profile = sketch12
pocket8.setExpression("Length", "Params.pocket8_length")

sketch13 = body.newObject("Sketcher::SketchObject", "Sketch012")
sketch13.AttachmentSupport = (doc.getObject("XY_Plane"), [""])
sketch13.MapMode = "FlatFace"
sketch13.AttachmentOffset = App.Placement(Vector(0, 0, 4), App.Rotation())
sketch13.addGeometry(Part.LineSegment(Vector(-32, 0, 0), Vector(-62, -70, 0)), False)
sketch13.addGeometry(Part.LineSegment(Vector(-62, -70, 0), Vector(-32, -70, 0)), False)
sketch13.addGeometry(Part.LineSegment(Vector(-32, -70, 0), Vector(-32, 0, 0)), False)
sketch13.addConstraint(Sketcher.Constraint("Coincident", 0, 2, 1, 1))
sketch13.addConstraint(Sketcher.Constraint("Coincident", 1, 2, 2, 1))
sketch13.addConstraint(Sketcher.Constraint("Coincident", 2, 2, 0, 1))
sketch13.addConstraint(Sketcher.Constraint("Horizontal", 1))
sketch13.addConstraint(Sketcher.Constraint("Vertical", 2))
sketch13.addConstraint(Sketcher.Constraint("PointOnObject", 2, 2, -1))
sketch13.addConstraint(Sketcher.Constraint("DistanceX", 1, 1, 1, 2, Q("30 mm")))
sketch13.addConstraint(Sketcher.Constraint("DistanceY", 2, 1, 2, 2, Q("70 mm")))
sketch13.addConstraint(Sketcher.Constraint("DistanceX", 0, 2, -1, 1, Q("62.5 mm")))
sketch13.setExpression("Constraints[6]", "Params.sketch13_width")
sketch13.setExpression("Constraints[7]", "Params.sketch13_height")
pad5 = body.newObject("PartDesign::Pad", "Pad004")
pad5.Profile = sketch13
pad5.setExpression("Length", "Params.pad5_length")
pad5.Reversed = True
doc.recompute()

fillet3 = body.newObject("PartDesign::Fillet", "Fillet002")
fillet3.Base = (pad5, edges_at(pad5, [(-32.5, 0, 2), (32.5, -70, 2), (-62.5, -70, 2)]))
fillet3.setExpression("Radius", "Params.fillet3_radius")

sketch14 = body.newObject("Sketcher::SketchObject", "Sketch013")
sketch14.AttachmentSupport = (doc.getObject("XY_Plane"), [""])
sketch14.MapMode = "FlatFace"
sketch14.AttachmentOffset = App.Placement(Vector(0, 0, 4), App.Rotation())
sketch14.addGeometry(Part.Circle(Vector(-54.950383, -60, 0), Vector(0, 0, 1), 1.6), False)
sketch14.addGeometry(Part.Circle(Vector(-47.071997, -41.617099, 0), Vector(0, 0, 1), 1.6), False)
sketch14.addGeometry(Part.Circle(Vector(-39.193611, -23.234199, 0), Vector(0, 0, 1), 1.6), False)
sketch14.addGeometry(Part.Circle(Vector(-31.315225, -4.851298, 0), Vector(0, 0, 1), 1.6), False)
sketch14.addGeometry(Part.LineSegment(Vector(-47.639177, -65.787839, 0), Vector(-33.852001, -33.617763, 0)), False)
sketch14.addGeometry(Part.ArcOfCircle(Part.Circle(Vector(-35.690292, -32.829924, 0), Vector(0, 0, 1), 2), math.radians(-23.198591), math.radians(156.801409)), False)
sketch14.addGeometry(Part.LineSegment(Vector(-37.528582, -32.042085, 0), Vector(-51.315757, -64.212161, 0)), False)
sketch14.addGeometry(Part.ArcOfCircle(Part.Circle(Vector(-49.477467, -65, 0), Vector(0, 0, 1), 2), math.radians(156.801409), math.radians(336.801409)), False)
sketch14.addConstraint(Sketcher.Constraint("Coincident", 4, 2, 5, 1))
sketch14.addConstraint(Sketcher.Constraint("Coincident", 5, 2, 6, 1))
sketch14.addConstraint(Sketcher.Constraint("Coincident", 6, 2, 7, 1))
sketch14.addConstraint(Sketcher.Constraint("Coincident", 7, 2, 4, 1))
sketch14.addConstraint(Sketcher.Constraint("Radius", 5, Q("2 mm")))
sketch14.addConstraint(Sketcher.Constraint("Radius", 7, Q("2 mm")))
sketch14.addConstraint(Sketcher.Constraint("Diameter", 0, Q("3.2 mm")))
sketch14.addConstraint(Sketcher.Constraint("Diameter", 1, Q("3.2 mm")))
sketch14.addConstraint(Sketcher.Constraint("Diameter", 2, Q("3.2 mm")))
sketch14.addConstraint(Sketcher.Constraint("Diameter", 3, Q("3.2 mm")))
sketch14.addConstraint(Sketcher.Constraint("Distance", 4, Q("35 mm")))
sketch14.addConstraint(Sketcher.Constraint("Distance", 6, Q("35 mm")))
sketch14.addConstraint(Sketcher.Constraint("DistanceY", 0, 3, -1, 1, Q("60 mm")))
sketch14.addConstraint(Sketcher.Constraint("DistanceY", 7, 3, -1, 1, Q("65 mm")))
sketch14.addConstraint(Sketcher.Constraint("DistanceX", 4, 2, -1, 1, Q("33.852001 mm")))
sketch14.addConstraint(Sketcher.Constraint("DistanceY", 1, 3, -1, 1, Q("41.617099 mm")))
sketch14.addConstraint(Sketcher.Constraint("DistanceY", 2, 3, -1, 1, Q("23.234199 mm")))
sketch14.addConstraint(Sketcher.Constraint("DistanceY", 3, 3, -1, 1, Q("4.851298 mm")))
sketch14.addConstraint(Sketcher.Constraint("DistanceX", 2, 3, -1, 1, Q("39.193611 mm")))
sketch14.addConstraint(Sketcher.Constraint("DistanceX", 5, 3, -1, 1, Q("35.690292 mm")))
sketch14.addConstraint(Sketcher.Constraint("DistanceX", 5, 2, -1, 1, Q("37.528582 mm")))
sketch14.addConstraint(Sketcher.Constraint("DistanceY", 6, 2, -1, 1, Q("64.212161 mm")))
sketch14.addConstraint(Sketcher.Constraint("DistanceX", 0, 3, 2, 3, Q("15.756772 mm")))
sketch14.addConstraint(Sketcher.Constraint("DistanceX", 1, 3, 3, 3, Q("15.756772 mm")))
sketch14.addConstraint(Sketcher.Constraint("DistanceX", 7, 3, 1, 3, Q("2.40547 mm")))
sketch14.addConstraint(Sketcher.Constraint("DistanceX", 1, 3, -1, 1, Q("47.071997 mm")))
sketch14.setExpression("Constraints[4]", "Params.sketch14_radius")
sketch14.setExpression("Constraints[5]", "Params.sketch14_radius2")
sketch14.setExpression("Constraints[6]", "Params.sketch14_diameter")
sketch14.setExpression("Constraints[7]", "Params.sketch14_diameter2")
sketch14.setExpression("Constraints[8]", "Params.sketch14_diameter3")
pocket9 = body.newObject("PartDesign::Pocket", "Pocket008")
pocket9.Profile = sketch14
pocket9.setExpression("Length", "Params.pocket9_length")

doc.recompute()
